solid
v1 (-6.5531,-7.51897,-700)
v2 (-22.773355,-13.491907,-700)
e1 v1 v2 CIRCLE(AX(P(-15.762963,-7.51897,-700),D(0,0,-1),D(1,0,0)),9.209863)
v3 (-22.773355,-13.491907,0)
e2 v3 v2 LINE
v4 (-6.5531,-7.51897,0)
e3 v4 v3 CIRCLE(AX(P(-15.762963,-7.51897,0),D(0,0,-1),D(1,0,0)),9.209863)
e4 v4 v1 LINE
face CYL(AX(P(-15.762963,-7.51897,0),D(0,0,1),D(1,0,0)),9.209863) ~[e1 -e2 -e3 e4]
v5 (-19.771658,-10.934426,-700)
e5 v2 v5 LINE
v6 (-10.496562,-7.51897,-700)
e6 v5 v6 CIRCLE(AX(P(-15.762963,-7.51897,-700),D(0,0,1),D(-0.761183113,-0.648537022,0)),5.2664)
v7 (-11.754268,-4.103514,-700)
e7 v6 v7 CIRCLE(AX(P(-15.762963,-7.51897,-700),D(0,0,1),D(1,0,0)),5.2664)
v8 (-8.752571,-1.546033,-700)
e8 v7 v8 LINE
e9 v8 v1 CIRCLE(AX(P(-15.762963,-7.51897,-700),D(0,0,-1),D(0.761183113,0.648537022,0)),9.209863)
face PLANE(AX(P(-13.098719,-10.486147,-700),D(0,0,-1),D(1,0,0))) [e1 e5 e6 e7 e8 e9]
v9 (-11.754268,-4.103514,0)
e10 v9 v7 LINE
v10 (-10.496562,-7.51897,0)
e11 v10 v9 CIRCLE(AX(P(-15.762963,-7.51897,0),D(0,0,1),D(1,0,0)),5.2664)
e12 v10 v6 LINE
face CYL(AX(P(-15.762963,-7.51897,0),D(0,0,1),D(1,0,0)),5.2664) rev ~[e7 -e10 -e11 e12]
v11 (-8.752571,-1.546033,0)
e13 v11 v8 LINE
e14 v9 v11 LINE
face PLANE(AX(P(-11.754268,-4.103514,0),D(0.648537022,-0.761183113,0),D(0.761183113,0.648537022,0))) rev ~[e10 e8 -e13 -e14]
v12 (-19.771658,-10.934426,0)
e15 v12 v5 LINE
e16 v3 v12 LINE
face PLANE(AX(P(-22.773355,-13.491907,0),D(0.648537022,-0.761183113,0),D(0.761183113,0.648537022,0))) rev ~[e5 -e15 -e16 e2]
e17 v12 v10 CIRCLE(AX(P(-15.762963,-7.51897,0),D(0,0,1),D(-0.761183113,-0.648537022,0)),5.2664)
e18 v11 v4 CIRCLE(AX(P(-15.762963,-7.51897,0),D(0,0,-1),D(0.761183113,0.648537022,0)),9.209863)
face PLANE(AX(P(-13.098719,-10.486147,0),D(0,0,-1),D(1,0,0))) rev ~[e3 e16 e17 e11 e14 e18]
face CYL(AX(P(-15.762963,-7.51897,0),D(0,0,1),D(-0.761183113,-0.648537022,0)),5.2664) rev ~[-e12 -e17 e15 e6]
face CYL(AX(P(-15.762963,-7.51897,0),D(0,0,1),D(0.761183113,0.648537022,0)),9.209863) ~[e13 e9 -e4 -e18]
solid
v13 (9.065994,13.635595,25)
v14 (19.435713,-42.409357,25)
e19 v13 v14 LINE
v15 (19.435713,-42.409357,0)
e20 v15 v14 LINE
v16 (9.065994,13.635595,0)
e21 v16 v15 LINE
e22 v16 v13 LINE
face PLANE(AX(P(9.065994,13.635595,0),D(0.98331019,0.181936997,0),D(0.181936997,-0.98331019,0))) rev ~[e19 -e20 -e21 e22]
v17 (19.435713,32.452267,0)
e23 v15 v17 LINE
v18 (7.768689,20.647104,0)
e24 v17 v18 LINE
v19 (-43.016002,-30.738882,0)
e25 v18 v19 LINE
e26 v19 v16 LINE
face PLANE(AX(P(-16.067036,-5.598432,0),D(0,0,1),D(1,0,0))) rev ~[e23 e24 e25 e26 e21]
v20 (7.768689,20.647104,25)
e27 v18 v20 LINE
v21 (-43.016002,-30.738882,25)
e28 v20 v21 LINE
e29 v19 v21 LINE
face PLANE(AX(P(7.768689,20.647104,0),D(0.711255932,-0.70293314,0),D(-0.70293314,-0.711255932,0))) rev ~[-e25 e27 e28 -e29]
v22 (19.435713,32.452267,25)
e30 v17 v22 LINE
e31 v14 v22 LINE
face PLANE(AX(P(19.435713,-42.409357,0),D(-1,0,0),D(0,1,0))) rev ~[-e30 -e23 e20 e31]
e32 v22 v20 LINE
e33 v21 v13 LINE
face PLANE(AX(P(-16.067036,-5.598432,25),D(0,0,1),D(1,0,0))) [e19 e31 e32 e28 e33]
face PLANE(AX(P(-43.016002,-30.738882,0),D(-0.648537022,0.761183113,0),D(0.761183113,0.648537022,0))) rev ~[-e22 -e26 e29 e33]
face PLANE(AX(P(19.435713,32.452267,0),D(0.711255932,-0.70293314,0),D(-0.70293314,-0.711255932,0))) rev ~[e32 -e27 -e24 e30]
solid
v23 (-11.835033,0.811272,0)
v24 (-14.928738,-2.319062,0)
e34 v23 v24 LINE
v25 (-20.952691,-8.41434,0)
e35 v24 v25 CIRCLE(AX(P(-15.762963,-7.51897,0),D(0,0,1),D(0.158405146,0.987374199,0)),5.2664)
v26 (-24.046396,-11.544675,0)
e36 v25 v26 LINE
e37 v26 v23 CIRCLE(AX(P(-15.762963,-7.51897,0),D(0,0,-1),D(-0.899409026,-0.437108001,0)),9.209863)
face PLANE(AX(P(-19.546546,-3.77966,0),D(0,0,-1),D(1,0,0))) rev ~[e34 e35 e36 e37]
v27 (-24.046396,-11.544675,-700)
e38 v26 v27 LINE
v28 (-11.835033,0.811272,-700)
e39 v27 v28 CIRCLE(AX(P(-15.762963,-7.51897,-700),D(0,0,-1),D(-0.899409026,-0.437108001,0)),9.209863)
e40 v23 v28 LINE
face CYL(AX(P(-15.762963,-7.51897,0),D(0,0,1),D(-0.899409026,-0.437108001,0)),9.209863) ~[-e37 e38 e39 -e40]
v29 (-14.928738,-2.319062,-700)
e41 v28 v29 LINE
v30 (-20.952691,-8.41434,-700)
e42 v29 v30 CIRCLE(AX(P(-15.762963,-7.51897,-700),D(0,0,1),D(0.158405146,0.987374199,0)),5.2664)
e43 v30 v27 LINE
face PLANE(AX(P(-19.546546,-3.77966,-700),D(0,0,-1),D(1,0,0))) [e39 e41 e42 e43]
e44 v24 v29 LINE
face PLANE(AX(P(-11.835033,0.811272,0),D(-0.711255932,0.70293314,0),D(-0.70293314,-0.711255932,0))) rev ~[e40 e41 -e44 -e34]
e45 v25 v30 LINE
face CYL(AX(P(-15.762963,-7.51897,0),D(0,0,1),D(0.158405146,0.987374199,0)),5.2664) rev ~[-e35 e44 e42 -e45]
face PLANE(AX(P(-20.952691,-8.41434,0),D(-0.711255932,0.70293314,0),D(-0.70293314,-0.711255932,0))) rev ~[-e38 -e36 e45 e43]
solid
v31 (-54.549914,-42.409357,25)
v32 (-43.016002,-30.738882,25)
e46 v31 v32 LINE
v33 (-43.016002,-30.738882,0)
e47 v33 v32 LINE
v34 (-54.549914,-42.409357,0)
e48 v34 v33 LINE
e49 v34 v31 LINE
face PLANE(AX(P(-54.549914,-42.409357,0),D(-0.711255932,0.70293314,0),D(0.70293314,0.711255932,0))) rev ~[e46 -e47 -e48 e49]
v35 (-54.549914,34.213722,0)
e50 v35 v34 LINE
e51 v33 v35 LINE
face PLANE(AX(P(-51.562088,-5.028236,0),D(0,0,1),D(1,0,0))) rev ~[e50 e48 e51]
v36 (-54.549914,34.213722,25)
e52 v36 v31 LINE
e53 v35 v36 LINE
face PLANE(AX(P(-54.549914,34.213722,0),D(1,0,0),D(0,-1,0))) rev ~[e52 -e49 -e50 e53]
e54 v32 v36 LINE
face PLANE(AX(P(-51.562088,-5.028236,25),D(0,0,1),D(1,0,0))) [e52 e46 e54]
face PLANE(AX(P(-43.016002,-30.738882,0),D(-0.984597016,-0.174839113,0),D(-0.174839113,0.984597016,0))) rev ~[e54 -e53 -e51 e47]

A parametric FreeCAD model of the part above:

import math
import FreeCAD as App
import Part
import Sketcher


def add_polygon(sketch, points):
    """Adds a closed chain of lines whose ends are joined by coincident constraints."""
    first, n = sketch.GeometryCount, len(points)
    for a, b in zip(points, points[1:] + points[:1]):
        sketch.addGeometry(Part.LineSegment(App.Vector(*a, 0), App.Vector(*b, 0)), False)
    for i in range(n):
        sketch.addConstraint(Sketcher.Constraint("Coincident", first + i, 2, first + (i + 1) % n, 1))

doc = App.newDocument("Part")
body = doc.addObject("PartDesign::Body", "Body")

sketch1 = body.newObject("Sketcher::SketchObject", "Sketch")
sketch1.AttachmentSupport = (doc.getObject("XY_Plane"), [""])
sketch1.MapMode = "FlatFace"
add_polygon(sketch1, [(8, 21), (-43, -31), (9, 14), (19, -42), (19, 32)])
sketch1.addConstraint(Sketcher.Constraint("Vertical", 3))
sketch1.addConstraint(Sketcher.Constraint("Parallel", 0, 4))
sketch1.addConstraint(Sketcher.Constraint("DistanceX", 0, 2, -1, 1, 43.016002))
sketch1.addConstraint(Sketcher.Constraint("Distance", 0, 72.24683))
sketch1.addConstraint(Sketcher.Constraint("Distance", 4, 16.597629))
sketch1.addConstraint(Sketcher.Constraint("DistanceY", 3, 1, 3, 2, 74.861623))
sketch1.addConstraint(Sketcher.Constraint("DistanceY", 0, 2, -1, 1, 30.738882))
sketch1.addConstraint(Sketcher.Constraint("DistanceX", -1, 1, 4, 2, 7.768689))
sketch1.addConstraint(Sketcher.Constraint("DistanceX", 1, 2, 2, 2, 10.369719))
sketch1.addConstraint(Sketcher.Constraint("DistanceY", 2, 2, 1, 2, 56.044952))
pad1 = body.newObject("PartDesign::Pad", "Pad")
pad1.Profile = sketch1
pad1.Length = 25
body2 = doc.addObject("PartDesign::Body", "Body001")

sketch2 = body2.newObject("Sketcher::SketchObject", "Sketch001")
sketch2.AttachmentSupport = (doc.getObject("XY_Plane001"), [""])
sketch2.MapMode = "FlatFace"
add_polygon(sketch2, [(-43, -31), (-55, 34), (-55, -42)])
sketch2.addConstraint(Sketcher.Constraint("Vertical", 1))
sketch2.addConstraint(Sketcher.Constraint("DistanceX", 2, 2, -1, 1, 43.016002))
sketch2.addConstraint(Sketcher.Constraint("DistanceY", 1, 2, 1, 1, 76.623078))
sketch2.addConstraint(Sketcher.Constraint("Distance", 0, 65.968719))
sketch2.addConstraint(Sketcher.Constraint("DistanceY", -1, 1, 0, 2, 34.213722))
sketch2.addConstraint(Sketcher.Constraint("DistanceY", 2, 2, -1, 1, 30.738882))
pad2 = body2.newObject("PartDesign::Pad", "Pad001")
pad2.Profile = sketch2
pad2.Length = 25
body3 = doc.addObject("PartDesign::Body", "Body002")

sketch3 = body3.newObject("Sketcher::SketchObject", "Sketch002")
sketch3.AttachmentSupport = (doc.getObject("XY_Plane002"), [""])
sketch3.MapMode = "FlatFace"
sketch3.addGeometry(Part.ArcOfCircle(Part.Circle(App.Vector(-15.8, -7.5, 0), App.Vector(0, 0, 1), 9.2), math.radians(0), math.radians(40)), False)
sketch3.addGeometry(Part.ArcOfCircle(Part.Circle(App.Vector(-15.8, -7.5, 0), App.Vector(0, 0, 1), 9.2), math.radians(-140), math.radians(0)), False)
sketch3.addGeometry(Part.LineSegment(App.Vector(-22.8, -13.5, 0), App.Vector(-19.8, -10.9, 0)), False)
sketch3.addGeometry(Part.ArcOfCircle(Part.Circle(App.Vector(-15.8, -7.5, 0), App.Vector(0, 0, 1), 5.3), math.radians(-140), math.radians(0)), False)
sketch3.addGeometry(Part.ArcOfCircle(Part.Circle(App.Vector(-15.8, -7.5, 0), App.Vector(0, 0, 1), 5.3), math.radians(0), math.radians(40)), False)
sketch3.addGeometry(Part.LineSegment(App.Vector(-11.8, -4.1, 0), App.Vector(-8.8, -1.5, 0)), False)
sketch3.addConstraint(Sketcher.Constraint("Tangent", 0, 1, 1, 2))
sketch3.addConstraint(Sketcher.Constraint("Coincident", 1, 1, 2, 1))
sketch3.addConstraint(Sketcher.Constraint("Coincident", 2, 2, 3, 1))
sketch3.addConstraint(Sketcher.Constraint("Tangent", 3, 2, 4, 1))
sketch3.addConstraint(Sketcher.Constraint("Coincident", 4, 2, 5, 1))
sketch3.addConstraint(Sketcher.Constraint("Coincident", 5, 2, 0, 2))
sketch3.addConstraint(Sketcher.Constraint("Coincident", 3, 3, 0, 3))
sketch3.addConstraint(Sketcher.Constraint("Equal", 0, 1))
sketch3.addConstraint(Sketcher.Constraint("Equal", 3, 4))
sketch3.addConstraint(Sketcher.Constraint("Parallel", 2, 5))
sketch3.addConstraint(Sketcher.Constraint("Horizontal", 4, 3, 0, 1))
sketch3.addConstraint(Sketcher.Constraint("Horizontal", 0, 1, 3, 2))
sketch3.addConstraint(Sketcher.Constraint("Radius", 3, 5.2664))
sketch3.addConstraint(Sketcher.Constraint("Radius", 0, 9.209863))
sketch3.addConstraint(Sketcher.Constraint("DistanceX", 0, 1, -1, 1, 6.5531))
sketch3.addConstraint(Sketcher.Constraint("DistanceY", 0, 3, -1, 1, 7.51897))
sketch3.addConstraint(Sketcher.Constraint("DistanceX", 5, 2, -1, 1, 8.752571))
sketch3.addConstraint(Sketcher.Constraint("DistanceY", 1, 1, 2, 2, 2.557481))
sketch3.addConstraint(Sketcher.Constraint("DistanceX", 1, 1, -1, 1, 22.773355))
pad3 = body3.newObject("PartDesign::Pad", "Pad002")
pad3.Profile = sketch3
pad3.Length = 700
pad3.Reversed = True
body4 = doc.addObject("PartDesign::Body", "Body003")

sketch4 = body4.newObject("Sketcher::SketchObject", "Sketch003")
sketch4.AttachmentSupport = (doc.getObject("XY_Plane003"), [""])
sketch4.MapMode = "FlatFace"
sketch4.addGeometry(Part.LineSegment(App.Vector(-21, -8.4, 0), App.Vector(-24, -11.5, 0)), False)
sketch4.addGeometry(Part.ArcOfCircle(Part.Circle(App.Vector(-15.8, -7.5, 0), App.Vector(0, 0, 1), 9.2), math.radians(65), math.radians(206)), False)
sketch4.addGeometry(Part.LineSegment(App.Vector(-11.8, 0.8, 0), App.Vector(-14.9, -2.3, 0)), False)
sketch4.addGeometry(Part.ArcOfCircle(Part.Circle(App.Vector(-15.8, -7.5, 0), App.Vector(0, 0, 1), 5.3), math.radians(81), math.radians(190)), False)
sketch4.addConstraint(Sketcher.Constraint("Coincident", 0, 2, 1, 2))
sketch4.addConstraint(Sketcher.Constraint("Coincident", 1, 1, 2, 1))
sketch4.addConstraint(Sketcher.Constraint("Coincident", 2, 2, 3, 1))
sketch4.addConstraint(Sketcher.Constraint("Coincident", 3, 2, 0, 1))
sketch4.addConstraint(Sketcher.Constraint("Coincident", 3, 3, 1, 3))
sketch4.addConstraint(Sketcher.Constraint("Parallel", 0, 2))
sketch4.addConstraint(Sketcher.Constraint("Equal", 0, 2))
sketch4.addConstraint(Sketcher.Constraint("Radius", 3, 5.2664))
sketch4.addConstraint(Sketcher.Constraint("Radius", 1, 9.209863))
sketch4.addConstraint(Sketcher.Constraint("DistanceY", 1, 3, -1, 1, 7.51897))
sketch4.addConstraint(Sketcher.Constraint("DistanceX", 3, 2, -1, 1, 20.952691))
sketch4.addConstraint(Sketcher.Constraint("DistanceY", 3, 2, -1, 1, 8.41434))
sketch4.addConstraint(Sketcher.Constraint("DistanceX", 1, 3, 1, 1, 3.92793))
pad4 = body4.newObject("PartDesign::Pad", "Pad003")
pad4.Profile = sketch4
pad4.Length = 700
pad4.Reversed = True

doc.recompute()
